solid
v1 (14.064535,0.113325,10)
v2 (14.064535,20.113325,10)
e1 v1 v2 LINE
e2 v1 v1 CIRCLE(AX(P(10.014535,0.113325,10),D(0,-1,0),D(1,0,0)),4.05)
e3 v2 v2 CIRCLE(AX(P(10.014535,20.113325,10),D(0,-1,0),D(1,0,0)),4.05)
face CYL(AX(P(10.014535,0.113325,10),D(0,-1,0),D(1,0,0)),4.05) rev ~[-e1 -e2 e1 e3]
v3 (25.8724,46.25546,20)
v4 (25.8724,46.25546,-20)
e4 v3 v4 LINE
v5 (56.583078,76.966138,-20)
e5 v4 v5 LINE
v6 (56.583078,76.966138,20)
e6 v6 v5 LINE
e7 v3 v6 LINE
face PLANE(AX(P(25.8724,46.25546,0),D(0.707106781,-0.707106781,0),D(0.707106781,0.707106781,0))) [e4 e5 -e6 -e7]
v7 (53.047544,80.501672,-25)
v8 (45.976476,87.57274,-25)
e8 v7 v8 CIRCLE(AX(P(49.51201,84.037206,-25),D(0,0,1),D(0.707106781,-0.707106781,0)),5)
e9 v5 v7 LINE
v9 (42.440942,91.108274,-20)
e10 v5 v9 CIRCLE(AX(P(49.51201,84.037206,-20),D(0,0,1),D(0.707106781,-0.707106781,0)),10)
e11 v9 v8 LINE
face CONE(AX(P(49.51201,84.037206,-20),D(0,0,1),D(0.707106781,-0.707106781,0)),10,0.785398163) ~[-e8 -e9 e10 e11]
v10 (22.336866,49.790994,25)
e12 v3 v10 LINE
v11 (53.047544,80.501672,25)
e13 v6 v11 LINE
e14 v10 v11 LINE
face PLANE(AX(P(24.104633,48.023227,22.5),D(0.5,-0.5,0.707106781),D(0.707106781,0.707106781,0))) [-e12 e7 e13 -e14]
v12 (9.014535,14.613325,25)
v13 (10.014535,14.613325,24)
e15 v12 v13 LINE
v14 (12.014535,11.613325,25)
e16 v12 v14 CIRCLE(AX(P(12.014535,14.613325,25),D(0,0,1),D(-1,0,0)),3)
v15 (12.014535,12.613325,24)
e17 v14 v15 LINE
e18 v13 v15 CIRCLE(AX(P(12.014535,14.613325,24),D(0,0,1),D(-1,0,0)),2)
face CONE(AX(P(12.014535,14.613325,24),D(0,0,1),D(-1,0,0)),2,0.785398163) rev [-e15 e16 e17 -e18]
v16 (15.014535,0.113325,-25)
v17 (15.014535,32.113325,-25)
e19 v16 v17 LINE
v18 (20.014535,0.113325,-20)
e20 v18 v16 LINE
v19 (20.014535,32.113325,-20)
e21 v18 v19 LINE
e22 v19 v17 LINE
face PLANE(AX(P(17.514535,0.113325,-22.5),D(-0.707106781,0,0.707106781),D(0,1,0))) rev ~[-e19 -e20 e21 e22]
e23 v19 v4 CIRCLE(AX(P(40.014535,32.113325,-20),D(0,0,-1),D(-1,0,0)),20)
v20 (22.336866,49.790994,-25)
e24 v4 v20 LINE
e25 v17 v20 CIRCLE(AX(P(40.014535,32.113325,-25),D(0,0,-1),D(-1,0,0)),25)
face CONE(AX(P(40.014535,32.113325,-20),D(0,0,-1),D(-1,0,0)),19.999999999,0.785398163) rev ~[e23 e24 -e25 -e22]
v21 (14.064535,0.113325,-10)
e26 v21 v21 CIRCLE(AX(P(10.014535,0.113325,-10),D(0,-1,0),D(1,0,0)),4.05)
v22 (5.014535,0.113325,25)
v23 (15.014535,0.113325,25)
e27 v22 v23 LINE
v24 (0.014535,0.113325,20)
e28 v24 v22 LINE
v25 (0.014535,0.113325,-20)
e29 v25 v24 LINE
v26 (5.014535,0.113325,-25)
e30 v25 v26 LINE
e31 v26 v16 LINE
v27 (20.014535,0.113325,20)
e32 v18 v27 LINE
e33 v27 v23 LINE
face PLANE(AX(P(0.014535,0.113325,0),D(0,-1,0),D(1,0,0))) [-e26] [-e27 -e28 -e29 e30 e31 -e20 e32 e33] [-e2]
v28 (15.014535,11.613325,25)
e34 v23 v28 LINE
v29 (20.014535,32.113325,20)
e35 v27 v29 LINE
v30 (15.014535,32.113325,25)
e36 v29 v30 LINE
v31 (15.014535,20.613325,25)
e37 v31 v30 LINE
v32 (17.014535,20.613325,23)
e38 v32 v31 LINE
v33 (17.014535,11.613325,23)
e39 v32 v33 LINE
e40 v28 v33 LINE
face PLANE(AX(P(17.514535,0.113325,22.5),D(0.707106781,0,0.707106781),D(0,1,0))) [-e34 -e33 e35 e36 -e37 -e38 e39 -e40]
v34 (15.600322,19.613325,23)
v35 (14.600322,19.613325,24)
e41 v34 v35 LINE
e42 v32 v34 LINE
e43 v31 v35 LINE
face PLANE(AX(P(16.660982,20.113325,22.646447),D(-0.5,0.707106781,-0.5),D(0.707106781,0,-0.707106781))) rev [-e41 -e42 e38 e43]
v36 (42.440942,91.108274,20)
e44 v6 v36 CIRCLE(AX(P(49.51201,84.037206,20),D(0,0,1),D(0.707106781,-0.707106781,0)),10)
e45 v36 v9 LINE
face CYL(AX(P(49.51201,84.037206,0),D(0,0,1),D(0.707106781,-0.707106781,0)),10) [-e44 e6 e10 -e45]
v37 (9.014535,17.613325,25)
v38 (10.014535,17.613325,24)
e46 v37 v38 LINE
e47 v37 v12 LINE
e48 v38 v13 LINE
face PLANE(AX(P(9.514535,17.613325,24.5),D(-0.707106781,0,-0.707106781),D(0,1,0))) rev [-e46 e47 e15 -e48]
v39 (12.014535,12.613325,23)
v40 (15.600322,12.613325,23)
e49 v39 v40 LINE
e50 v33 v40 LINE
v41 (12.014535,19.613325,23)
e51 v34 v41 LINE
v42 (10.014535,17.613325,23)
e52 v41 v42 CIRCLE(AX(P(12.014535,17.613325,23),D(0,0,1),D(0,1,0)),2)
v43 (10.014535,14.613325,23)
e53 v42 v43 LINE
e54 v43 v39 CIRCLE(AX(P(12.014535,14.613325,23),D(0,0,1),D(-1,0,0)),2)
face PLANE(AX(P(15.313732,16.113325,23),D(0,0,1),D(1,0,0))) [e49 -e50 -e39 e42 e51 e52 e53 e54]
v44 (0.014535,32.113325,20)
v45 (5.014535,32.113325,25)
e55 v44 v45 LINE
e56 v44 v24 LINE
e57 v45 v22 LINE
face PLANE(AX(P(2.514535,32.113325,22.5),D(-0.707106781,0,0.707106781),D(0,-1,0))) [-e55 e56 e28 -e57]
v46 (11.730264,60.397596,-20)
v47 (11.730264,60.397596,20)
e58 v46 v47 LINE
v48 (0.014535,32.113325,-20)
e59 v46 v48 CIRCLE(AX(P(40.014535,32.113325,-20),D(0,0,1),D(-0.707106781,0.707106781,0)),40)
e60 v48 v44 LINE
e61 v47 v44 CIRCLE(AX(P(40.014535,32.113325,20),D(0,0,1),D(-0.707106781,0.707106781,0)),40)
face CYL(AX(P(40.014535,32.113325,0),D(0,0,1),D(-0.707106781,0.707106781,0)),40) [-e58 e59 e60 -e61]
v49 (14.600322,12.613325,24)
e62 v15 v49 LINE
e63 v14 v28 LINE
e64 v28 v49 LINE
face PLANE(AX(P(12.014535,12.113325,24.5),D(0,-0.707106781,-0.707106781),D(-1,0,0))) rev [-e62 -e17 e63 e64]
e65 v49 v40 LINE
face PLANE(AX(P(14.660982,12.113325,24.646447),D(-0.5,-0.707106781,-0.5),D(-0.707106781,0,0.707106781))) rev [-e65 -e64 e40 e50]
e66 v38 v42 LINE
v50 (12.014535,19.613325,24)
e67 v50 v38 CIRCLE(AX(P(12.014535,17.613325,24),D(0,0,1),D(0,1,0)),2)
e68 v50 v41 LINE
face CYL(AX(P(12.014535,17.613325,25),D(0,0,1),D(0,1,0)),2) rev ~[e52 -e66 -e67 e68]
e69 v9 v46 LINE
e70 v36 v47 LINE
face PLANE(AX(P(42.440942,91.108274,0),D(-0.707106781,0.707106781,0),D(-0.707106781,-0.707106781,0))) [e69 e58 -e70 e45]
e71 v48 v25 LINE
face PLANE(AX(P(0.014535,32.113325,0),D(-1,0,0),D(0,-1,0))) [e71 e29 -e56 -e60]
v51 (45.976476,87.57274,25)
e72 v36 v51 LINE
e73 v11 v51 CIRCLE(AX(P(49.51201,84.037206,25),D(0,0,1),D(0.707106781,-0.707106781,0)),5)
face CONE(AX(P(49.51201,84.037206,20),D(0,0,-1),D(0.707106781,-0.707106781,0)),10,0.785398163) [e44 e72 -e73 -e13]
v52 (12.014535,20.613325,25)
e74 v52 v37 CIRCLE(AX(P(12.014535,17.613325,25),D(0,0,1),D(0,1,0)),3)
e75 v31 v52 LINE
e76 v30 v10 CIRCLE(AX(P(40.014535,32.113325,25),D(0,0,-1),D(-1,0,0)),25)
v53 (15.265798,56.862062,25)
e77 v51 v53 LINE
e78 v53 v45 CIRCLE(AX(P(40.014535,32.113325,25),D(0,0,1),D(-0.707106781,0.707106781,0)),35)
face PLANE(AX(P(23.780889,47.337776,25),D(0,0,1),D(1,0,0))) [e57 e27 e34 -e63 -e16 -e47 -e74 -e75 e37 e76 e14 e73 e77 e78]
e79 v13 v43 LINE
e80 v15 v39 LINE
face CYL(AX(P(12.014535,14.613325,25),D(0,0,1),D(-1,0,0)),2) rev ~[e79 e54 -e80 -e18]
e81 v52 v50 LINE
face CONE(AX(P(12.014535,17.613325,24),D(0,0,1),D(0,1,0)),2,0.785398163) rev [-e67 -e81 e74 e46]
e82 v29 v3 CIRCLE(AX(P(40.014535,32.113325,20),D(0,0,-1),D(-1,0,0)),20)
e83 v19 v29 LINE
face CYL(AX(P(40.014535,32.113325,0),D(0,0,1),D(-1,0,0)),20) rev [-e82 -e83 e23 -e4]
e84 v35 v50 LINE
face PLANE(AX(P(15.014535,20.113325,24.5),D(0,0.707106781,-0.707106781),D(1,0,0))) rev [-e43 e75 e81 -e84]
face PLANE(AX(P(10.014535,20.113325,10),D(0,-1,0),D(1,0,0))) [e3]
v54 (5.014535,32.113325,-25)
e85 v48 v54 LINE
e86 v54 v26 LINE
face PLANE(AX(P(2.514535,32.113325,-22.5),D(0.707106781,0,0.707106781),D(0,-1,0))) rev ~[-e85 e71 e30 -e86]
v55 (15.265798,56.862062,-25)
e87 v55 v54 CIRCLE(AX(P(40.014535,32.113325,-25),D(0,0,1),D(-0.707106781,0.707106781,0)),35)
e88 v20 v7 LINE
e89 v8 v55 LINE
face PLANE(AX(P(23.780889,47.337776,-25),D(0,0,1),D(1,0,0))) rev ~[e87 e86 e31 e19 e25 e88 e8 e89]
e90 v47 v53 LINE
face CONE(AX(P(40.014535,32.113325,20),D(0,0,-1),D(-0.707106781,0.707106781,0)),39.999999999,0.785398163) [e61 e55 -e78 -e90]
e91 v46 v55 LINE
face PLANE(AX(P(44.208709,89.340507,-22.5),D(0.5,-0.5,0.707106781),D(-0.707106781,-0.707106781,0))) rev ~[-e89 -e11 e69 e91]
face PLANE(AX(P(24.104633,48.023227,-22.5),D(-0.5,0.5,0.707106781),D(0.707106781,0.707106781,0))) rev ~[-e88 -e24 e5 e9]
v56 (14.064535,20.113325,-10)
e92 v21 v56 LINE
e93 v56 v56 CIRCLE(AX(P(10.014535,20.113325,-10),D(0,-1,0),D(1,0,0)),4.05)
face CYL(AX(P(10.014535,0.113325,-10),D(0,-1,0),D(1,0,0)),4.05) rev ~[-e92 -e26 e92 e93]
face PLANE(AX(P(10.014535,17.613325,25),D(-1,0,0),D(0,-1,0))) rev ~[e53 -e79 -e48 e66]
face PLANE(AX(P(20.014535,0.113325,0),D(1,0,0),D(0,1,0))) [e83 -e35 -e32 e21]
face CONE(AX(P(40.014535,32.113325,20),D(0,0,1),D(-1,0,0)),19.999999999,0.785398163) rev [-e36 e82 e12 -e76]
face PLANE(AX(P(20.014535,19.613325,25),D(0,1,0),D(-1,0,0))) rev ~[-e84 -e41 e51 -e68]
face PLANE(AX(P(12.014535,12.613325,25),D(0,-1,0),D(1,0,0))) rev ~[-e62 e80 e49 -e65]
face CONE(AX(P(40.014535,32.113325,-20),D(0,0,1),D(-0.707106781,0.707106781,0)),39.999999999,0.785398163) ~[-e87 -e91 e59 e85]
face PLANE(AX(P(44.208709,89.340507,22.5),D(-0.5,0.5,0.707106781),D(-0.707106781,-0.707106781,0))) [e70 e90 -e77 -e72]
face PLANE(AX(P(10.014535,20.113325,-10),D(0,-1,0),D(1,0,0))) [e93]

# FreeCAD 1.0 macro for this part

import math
import FreeCAD as App
import Part
import Sketcher
from FreeCAD import Vector
Q = App.Units.Quantity


def edges_at(feature, points):
    """Names of the edges that pass closest to the given points."""
    edges = feature.Shape.Edges
    near = lambda p: min(range(len(edges)), key=lambda i: edges[i].distToShape(Part.Vertex(*p))[0])
    return sorted({f"Edge{near(p) + 1}" for p in points})

doc = App.newDocument("Part")
body = doc.addObject("PartDesign::Body", "Body")

# Sketch on XY plane
sketch1 = body.newObject("Sketcher::SketchObject", "Sketch")
sketch1.AttachmentSupport = (doc.getObject("XY_Plane"), [""])
sketch1.MapMode = "FlatFace"
sketch1.addGeometry(Part.LineSegment(Vector(42.440942, 91.108274, 0), Vector(11.730264, 60.397596, 0)), False)
sketch1.addGeometry(Part.ArcOfCircle(Part.Circle(Vector(40.014535, 32.113325, 0), Vector(0, 0, 1), 40), math.radians(135), math.radians(180)), False)
sketch1.addGeometry(Part.LineSegment(Vector(0.014535, 32.113325, 0), Vector(0.014535, 0.113325, 0)), False)
sketch1.addGeometry(Part.LineSegment(Vector(0.014535, 0.113325, 0), Vector(20.014535, 0.113325, 0)), False)
sketch1.addGeometry(Part.LineSegment(Vector(20.014535, 0.113325, 0), Vector(20.014535, 32.113325, 0)), False)
sketch1.addGeometry(Part.ArcOfCircle(Part.Circle(Vector(40.014535, 32.113325, 0), Vector(0, 0, 1), 20), math.radians(135), math.radians(180)), False)
sketch1.addGeometry(Part.LineSegment(Vector(25.8724, 46.25546, 0), Vector(56.583078, 76.966138, 0)), False)
sketch1.addGeometry(Part.ArcOfCircle(Part.Circle(Vector(49.51201, 84.037206, 0), Vector(0, 0, 1), 10), math.radians(-45), math.radians(135)), False)
sketch1.addConstraint(Sketcher.Constraint("Tangent", 0, 2, 1, 1))
sketch1.addConstraint(Sketcher.Constraint("Tangent", 1, 2, 2, 1))
sketch1.addConstraint(Sketcher.Constraint("Coincident", 2, 2, 3, 1))
sketch1.addConstraint(Sketcher.Constraint("Coincident", 3, 2, 4, 1))
sketch1.addConstraint(Sketcher.Constraint("Tangent", 4, 2, 5, 2))
sketch1.addConstraint(Sketcher.Constraint("Tangent", 5, 1, 6, 1))
sketch1.addConstraint(Sketcher.Constraint("Tangent", 6, 2, 7, 1))
sketch1.addConstraint(Sketcher.Constraint("Tangent", 7, 2, 0, 1))
sketch1.addConstraint(Sketcher.Constraint("Vertical", 2))
sketch1.addConstraint(Sketcher.Constraint("Horizontal", 3))
sketch1.addConstraint(Sketcher.Constraint("Vertical", 4))
sketch1.addConstraint(Sketcher.Constraint("Coincident", 5, 3, 1, 3))
sketch1.addConstraint(Sketcher.Constraint("Parallel", 0, 6))
sketch1.addConstraint(Sketcher.Constraint("Radius", 1, 40.0))
sketch1.addConstraint(Sketcher.Constraint("Radius", 5, 20.0))
sketch1.addConstraint(Sketcher.Constraint("DistanceY", 2, 2, 2, 1, 32.0))
sketch1.addConstraint(Sketcher.Constraint("Angle", 0, Q("-135 deg")))
sketch1.addConstraint(Sketcher.Constraint("DistanceX", -1, 1, 5, 1, 25.8724))
sketch1.addConstraint(Sketcher.Constraint("DistanceX", -1, 1, 7, 3, 49.51201))
sketch1.addConstraint(Sketcher.Constraint("DistanceY", -1, 1, 5, 1, 46.25546))
pad1 = body.newObject("PartDesign::Pad", "Pad")
pad1.Profile = sketch1
pad1.Type = "TwoLengths"
pad1.Length = 25
pad1.Length2 = 25
doc.recompute()

chamfer = body.newObject("PartDesign::Chamfer", "Chamfer")
chamfer.Base = (pad1, edges_at(pad1, [
    (0.015, 16.113, 25),
    (3.059, 47.421, 25),
    (27.086, 75.753, 25),
    (56.583, 91.108, 25),
    (41.228, 61.611, 25),
    (21.537, 39.767, 25),
    (20.015, 16.113, 25),
    (41.228, 61.611, -25),
    (56.583, 91.108, -25),
    (27.086, 75.753, -25),
    (3.059, 47.421, -25),
    (0.015, 16.113, -25),
    (21.537, 39.767, -25),
    (20.015, 16.113, -25),
]))
chamfer.Size = 5

# Sketch on XZ plane
sketch2 = body.newObject("Sketcher::SketchObject", "Sketch001")
sketch2.AttachmentSupport = (doc.getObject("XZ_Plane"), [""])
sketch2.MapMode = "FlatFace"
sketch2.AttachmentOffset = App.Placement(Vector(0, 0, -0.113325), App.Rotation())
sketch2.addGeometry(Part.Circle(Vector(10.014535, 10, 0), Vector(0, 0, 1), 4.05), False)
sketch2.addGeometry(Part.Circle(Vector(10.014535, -10, 0), Vector(0, 0, 1), 4.05), False)
sketch2.addConstraint(Sketcher.Constraint("Equal", 0, 1))
sketch2.addConstraint(Sketcher.Constraint("Symmetric", 0, 3, 1, 3, -1))
sketch2.addConstraint(Sketcher.Constraint("Diameter", 0, 8.1))
sketch2.addConstraint(Sketcher.Constraint("DistanceY", -1, 1, 0, 3, 10.0))
sketch2.addConstraint(Sketcher.Constraint("DistanceX", -1, 1, 0, 3, 10.014535))
pocket1 = body.newObject("PartDesign::Pocket", "Pocket")
pocket1.Profile = sketch2
pocket1.Length = 20

# Sketch on XY plane
sketch3 = body.newObject("Sketcher::SketchObject", "Sketch002")
sketch3.AttachmentSupport = (doc.getObject("XY_Plane"), [""])
sketch3.MapMode = "FlatFace"
sketch3.AttachmentOffset = App.Placement(Vector(0, 0, 25), App.Rotation())
sketch3.addGeometry(Part.LineSegment(Vector(12.014535, 12.613325, 0), Vector(20.014535, 12.613325, 0)), False)
sketch3.addGeometry(Part.LineSegment(Vector(20.014535, 12.613325, 0), Vector(20.014535, 19.613325, 0)), False)
sketch3.addGeometry(Part.LineSegment(Vector(20.014535, 19.613325, 0), Vector(12.014535, 19.613325, 0)), False)
sketch3.addGeometry(Part.ArcOfCircle(Part.Circle(Vector(12.014535, 17.613325, 0), Vector(0, 0, 1), 2), math.radians(90), math.radians(180)), False)
sketch3.addGeometry(Part.LineSegment(Vector(10.014535, 17.613325, 0), Vector(10.014535, 14.613325, 0)), False)
sketch3.addGeometry(Part.ArcOfCircle(Part.Circle(Vector(12.014535, 14.613325, 0), Vector(0, 0, 1), 2), math.radians(180), math.radians(270)), False)
sketch3.addConstraint(Sketcher.Constraint("Coincident", 0, 2, 1, 1))
sketch3.addConstraint(Sketcher.Constraint("Coincident", 1, 2, 2, 1))
sketch3.addConstraint(Sketcher.Constraint("Tangent", 2, 2, 3, 1))
sketch3.addConstraint(Sketcher.Constraint("Tangent", 3, 2, 4, 1))
sketch3.addConstraint(Sketcher.Constraint("Tangent", 4, 2, 5, 1))
sketch3.addConstraint(Sketcher.Constraint("Tangent", 5, 2, 0, 1))
sketch3.addConstraint(Sketcher.Constraint("Horizontal", 0))
sketch3.addConstraint(Sketcher.Constraint("Vertical", 1))
sketch3.addConstraint(Sketcher.Constraint("Horizontal", 2))
sketch3.addConstraint(Sketcher.Constraint("Vertical", 4))
sketch3.addConstraint(Sketcher.Constraint("Equal", 3, 5))
sketch3.addConstraint(Sketcher.Constraint("Radius", 3, 2.0))
sketch3.addConstraint(Sketcher.Constraint("DistanceX", 0, 1, 0, 2, 8.0))
sketch3.addConstraint(Sketcher.Constraint("DistanceY", 1, 1, 1, 2, 7.0))
sketch3.addConstraint(Sketcher.Constraint("DistanceX", -1, 1, 3, 3, 12.014535))
sketch3.addConstraint(Sketcher.Constraint("DistanceY", -1, 1, 3, 3, 17.613325))
pocket2 = body.newObject("PartDesign::Pocket", "Pocket001")
pocket2.Profile = sketch3
pocket2.Length = 2
doc.recompute()

chamfer2 = body.newObject("PartDesign::Chamfer", "Chamfer001")
chamfer2.Base = (pocket2, edges_at(pocket2, [
    (10.6, 19.028, 25),
    (10.015, 16.113, 25),
    (10.6, 13.199, 25),
    (13.515, 12.613, 25),
    (16.015, 12.613, 24),
    (13.515, 19.613, 25),
    (16.015, 19.613, 24),
]))
chamfer2.Size = 1

doc.recompute()
